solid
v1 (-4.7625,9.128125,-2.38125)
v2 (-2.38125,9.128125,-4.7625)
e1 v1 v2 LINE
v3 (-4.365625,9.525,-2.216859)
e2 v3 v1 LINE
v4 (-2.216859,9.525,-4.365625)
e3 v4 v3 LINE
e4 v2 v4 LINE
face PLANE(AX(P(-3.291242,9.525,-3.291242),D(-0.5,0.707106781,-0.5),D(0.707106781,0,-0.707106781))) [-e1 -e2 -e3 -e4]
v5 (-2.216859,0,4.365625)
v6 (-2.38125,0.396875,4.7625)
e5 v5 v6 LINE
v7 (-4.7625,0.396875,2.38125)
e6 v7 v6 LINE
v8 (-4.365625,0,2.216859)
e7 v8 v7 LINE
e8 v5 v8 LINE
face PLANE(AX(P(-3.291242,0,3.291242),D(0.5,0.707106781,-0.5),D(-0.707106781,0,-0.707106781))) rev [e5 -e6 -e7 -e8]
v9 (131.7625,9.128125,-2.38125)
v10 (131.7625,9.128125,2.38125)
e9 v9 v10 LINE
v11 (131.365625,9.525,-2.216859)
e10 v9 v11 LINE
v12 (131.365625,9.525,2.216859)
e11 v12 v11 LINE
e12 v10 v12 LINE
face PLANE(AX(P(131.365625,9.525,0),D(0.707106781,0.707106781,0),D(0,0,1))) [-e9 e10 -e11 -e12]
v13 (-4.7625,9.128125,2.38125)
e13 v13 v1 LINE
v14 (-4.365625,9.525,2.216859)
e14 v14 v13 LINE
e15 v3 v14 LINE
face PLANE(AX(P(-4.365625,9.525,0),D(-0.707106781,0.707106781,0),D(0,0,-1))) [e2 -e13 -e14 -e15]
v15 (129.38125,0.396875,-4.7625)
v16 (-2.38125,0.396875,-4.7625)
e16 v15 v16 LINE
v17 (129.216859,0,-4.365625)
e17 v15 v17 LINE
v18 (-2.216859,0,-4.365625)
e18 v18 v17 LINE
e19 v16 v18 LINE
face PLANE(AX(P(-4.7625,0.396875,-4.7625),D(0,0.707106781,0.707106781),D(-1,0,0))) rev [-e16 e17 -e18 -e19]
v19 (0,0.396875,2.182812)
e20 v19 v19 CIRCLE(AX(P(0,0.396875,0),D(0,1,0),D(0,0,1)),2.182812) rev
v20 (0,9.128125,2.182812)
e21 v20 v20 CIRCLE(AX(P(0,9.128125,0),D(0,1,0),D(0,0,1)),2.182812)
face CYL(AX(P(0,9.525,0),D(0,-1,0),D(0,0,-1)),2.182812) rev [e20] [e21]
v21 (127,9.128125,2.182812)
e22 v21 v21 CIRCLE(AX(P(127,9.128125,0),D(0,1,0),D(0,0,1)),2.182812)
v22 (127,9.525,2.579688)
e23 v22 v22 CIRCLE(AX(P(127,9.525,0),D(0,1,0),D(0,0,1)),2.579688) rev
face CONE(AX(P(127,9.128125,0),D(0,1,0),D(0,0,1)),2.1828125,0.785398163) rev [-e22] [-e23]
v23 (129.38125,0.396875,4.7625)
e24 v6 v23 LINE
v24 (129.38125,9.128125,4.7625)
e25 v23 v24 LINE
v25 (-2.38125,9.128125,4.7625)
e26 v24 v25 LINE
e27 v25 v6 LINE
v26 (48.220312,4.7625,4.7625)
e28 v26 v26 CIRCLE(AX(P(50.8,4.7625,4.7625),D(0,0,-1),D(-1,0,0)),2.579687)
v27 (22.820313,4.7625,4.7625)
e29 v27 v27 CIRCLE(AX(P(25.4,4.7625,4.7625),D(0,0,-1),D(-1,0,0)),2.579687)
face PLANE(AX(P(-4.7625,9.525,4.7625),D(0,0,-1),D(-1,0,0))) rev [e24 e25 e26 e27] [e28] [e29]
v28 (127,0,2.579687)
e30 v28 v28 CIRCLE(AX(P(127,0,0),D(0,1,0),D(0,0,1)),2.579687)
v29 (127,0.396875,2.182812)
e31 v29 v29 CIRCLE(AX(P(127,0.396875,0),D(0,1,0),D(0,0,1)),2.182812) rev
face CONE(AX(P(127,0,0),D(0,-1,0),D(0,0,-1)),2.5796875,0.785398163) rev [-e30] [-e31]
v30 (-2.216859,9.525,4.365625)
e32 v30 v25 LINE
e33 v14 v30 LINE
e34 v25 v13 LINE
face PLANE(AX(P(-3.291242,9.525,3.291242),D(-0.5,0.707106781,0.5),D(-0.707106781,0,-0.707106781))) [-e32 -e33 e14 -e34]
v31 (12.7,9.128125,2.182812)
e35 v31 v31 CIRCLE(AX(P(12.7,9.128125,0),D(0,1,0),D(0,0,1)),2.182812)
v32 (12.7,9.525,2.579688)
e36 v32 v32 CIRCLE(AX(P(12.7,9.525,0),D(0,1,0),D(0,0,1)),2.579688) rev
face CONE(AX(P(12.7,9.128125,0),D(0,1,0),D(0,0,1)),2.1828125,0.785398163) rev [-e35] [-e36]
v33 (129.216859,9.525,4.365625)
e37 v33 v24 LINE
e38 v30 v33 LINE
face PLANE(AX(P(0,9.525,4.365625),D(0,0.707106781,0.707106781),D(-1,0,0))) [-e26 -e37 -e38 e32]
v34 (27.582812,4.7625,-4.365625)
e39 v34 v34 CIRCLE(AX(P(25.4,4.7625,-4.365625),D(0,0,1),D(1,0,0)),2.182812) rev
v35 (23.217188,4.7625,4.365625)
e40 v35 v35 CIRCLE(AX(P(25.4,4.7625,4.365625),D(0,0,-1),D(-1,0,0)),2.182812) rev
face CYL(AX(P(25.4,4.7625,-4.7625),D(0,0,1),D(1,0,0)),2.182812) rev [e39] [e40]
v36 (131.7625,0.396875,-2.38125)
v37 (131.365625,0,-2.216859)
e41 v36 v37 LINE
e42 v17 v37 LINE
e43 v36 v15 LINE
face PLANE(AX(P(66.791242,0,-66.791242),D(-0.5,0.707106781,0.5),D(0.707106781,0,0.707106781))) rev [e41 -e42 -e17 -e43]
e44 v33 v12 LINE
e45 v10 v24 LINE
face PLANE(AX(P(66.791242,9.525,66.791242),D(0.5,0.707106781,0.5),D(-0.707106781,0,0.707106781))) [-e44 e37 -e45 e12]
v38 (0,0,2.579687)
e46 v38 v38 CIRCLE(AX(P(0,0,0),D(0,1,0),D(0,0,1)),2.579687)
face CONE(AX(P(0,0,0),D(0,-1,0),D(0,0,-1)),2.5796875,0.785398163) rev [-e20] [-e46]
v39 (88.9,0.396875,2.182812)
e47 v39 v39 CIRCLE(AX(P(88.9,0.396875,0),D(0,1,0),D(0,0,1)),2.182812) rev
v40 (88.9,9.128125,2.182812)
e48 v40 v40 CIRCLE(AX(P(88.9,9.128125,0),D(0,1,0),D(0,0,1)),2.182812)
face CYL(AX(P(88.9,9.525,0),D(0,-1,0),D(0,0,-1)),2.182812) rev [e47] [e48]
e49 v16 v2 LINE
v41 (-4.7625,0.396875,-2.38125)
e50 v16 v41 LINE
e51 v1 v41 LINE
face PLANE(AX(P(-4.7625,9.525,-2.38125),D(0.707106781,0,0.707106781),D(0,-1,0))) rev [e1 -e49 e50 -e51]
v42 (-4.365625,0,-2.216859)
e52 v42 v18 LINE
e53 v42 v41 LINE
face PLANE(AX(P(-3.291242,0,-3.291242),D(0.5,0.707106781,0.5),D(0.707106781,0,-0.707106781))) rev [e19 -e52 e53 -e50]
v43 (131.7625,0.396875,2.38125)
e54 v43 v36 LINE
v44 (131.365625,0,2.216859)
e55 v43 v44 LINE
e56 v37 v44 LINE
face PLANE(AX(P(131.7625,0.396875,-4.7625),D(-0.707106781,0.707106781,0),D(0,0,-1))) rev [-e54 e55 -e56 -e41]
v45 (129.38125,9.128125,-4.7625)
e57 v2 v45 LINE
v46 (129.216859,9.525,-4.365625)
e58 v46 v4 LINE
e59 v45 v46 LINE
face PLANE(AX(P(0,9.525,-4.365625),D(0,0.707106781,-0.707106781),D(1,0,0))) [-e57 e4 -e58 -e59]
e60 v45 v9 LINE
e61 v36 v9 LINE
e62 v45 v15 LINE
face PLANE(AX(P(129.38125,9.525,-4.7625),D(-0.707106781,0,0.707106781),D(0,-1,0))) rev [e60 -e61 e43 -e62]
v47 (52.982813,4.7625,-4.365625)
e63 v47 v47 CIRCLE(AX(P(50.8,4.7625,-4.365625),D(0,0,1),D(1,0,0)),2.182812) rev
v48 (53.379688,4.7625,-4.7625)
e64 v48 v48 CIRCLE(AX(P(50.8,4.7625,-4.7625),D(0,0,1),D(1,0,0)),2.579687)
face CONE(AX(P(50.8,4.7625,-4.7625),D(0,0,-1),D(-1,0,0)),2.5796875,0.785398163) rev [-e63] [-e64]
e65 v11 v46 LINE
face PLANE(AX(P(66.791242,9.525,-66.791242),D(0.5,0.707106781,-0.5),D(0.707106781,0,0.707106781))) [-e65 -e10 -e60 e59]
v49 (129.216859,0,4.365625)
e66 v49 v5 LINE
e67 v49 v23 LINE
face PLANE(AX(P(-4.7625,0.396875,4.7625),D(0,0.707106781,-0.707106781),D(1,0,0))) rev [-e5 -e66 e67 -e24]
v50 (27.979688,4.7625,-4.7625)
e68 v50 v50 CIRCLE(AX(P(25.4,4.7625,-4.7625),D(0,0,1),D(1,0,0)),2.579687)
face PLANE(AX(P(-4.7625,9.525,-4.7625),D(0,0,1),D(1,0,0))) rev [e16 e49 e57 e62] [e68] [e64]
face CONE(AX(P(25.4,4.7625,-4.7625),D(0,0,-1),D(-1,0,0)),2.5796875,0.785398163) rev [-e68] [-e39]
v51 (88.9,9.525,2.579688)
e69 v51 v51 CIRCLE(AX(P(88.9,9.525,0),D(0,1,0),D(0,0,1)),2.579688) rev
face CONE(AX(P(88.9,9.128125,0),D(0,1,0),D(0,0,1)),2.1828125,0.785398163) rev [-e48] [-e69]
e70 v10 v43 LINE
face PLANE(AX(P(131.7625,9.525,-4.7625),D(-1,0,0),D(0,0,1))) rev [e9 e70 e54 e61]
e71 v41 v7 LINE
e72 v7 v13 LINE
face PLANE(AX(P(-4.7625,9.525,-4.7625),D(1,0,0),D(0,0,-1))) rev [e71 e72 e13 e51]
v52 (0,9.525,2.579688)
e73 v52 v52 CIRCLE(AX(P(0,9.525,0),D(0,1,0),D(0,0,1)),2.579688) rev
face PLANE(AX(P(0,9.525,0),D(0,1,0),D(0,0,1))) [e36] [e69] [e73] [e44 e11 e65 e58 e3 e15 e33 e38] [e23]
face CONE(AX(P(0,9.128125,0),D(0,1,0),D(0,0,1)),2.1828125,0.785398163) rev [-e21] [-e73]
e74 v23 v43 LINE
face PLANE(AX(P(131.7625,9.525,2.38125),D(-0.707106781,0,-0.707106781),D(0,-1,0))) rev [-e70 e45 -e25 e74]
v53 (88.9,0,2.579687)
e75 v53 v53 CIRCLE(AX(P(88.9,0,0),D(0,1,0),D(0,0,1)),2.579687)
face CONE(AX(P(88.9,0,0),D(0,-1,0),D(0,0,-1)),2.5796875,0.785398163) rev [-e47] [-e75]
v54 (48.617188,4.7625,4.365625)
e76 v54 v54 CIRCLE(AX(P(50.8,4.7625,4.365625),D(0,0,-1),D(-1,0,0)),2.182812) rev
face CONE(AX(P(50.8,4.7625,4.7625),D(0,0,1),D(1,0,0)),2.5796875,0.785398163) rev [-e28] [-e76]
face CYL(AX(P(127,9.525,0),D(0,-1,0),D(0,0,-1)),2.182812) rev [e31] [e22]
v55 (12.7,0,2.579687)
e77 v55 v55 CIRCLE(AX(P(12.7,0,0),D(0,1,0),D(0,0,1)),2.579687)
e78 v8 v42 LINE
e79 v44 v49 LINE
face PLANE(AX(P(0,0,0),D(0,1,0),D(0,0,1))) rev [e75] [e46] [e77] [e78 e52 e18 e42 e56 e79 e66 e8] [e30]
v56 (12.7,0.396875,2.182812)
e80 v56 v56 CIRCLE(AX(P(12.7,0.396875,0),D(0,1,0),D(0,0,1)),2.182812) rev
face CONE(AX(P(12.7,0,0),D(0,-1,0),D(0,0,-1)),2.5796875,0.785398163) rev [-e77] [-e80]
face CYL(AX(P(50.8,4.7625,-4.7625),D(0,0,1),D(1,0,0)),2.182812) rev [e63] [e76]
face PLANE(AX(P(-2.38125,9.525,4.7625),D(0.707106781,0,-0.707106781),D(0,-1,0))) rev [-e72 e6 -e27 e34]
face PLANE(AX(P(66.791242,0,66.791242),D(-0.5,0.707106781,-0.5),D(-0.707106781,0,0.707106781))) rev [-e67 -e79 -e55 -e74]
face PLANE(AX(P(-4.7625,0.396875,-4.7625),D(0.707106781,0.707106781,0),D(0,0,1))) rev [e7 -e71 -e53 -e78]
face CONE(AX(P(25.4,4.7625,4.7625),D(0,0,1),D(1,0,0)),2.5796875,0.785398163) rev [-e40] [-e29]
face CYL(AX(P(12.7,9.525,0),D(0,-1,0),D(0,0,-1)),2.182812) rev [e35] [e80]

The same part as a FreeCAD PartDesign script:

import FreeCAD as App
import Part
import Sketcher
Q = App.Units.Quantity


def edges_at(feature, points):
    """Names of the edges that pass closest to the given points."""
    edges = feature.Shape.Edges
    near = lambda p: min(range(len(edges)), key=lambda i: edges[i].distToShape(Part.Vertex(*p))[0])
    return sorted({f"Edge{near(p) + 1}" for p in points})

doc = App.newDocument("Part")
body = doc.addObject("PartDesign::Body", "Body")

# Sketch on XZ plane
sketch1 = body.newObject("Sketcher::SketchObject", "Sketch")
sketch1.AttachmentSupport = (doc.getObject("XZ_Plane"), [""])
sketch1.MapMode = "FlatFace"
sketch1.addGeometry([
    Part.LineSegment(App.Vector(-4.8, -4.8, 0), App.Vector(-4.8, 4.8, 0)),  # 0
    Part.LineSegment(App.Vector(-4.8, 4.8, 0), App.Vector(131.8, 4.8, 0)),  # 1
    Part.LineSegment(App.Vector(131.8, 4.8, 0), App.Vector(131.8, -4.8, 0)),  # 2
    Part.LineSegment(App.Vector(131.8, -4.8, 0), App.Vector(-4.8, -4.8, 0)),  # 3
    Part.Circle(App.Vector(0, 0, 0), App.Vector(0, 0, 1), 2.2),  # 4
    Part.Circle(App.Vector(12.7, 0, 0), App.Vector(0, 0, 1), 2.2),  # 5
    Part.Circle(App.Vector(88.9, 0, 0), App.Vector(0, 0, 1), 2.2),  # 6
    Part.Circle(App.Vector(127, 0, 0), App.Vector(0, 0, 1), 2.2),  # 7
], False)
sketch1.addConstraint([
    Sketcher.Constraint("Coincident", 0, 2, 1, 1),
    Sketcher.Constraint("Coincident", 1, 2, 2, 1),
    Sketcher.Constraint("Coincident", 2, 2, 3, 1),
    Sketcher.Constraint("Coincident", 3, 2, 0, 1),
    Sketcher.Constraint("Vertical", 0),
    Sketcher.Constraint("Horizontal", 1),
    Sketcher.Constraint("Vertical", 2),
    Sketcher.Constraint("Horizontal", 3),
    Sketcher.Constraint("Coincident", 4, 3, -1, 1),
    Sketcher.Constraint("Equal", 4, 5),
    Sketcher.Constraint("Equal", 5, 6),
    Sketcher.Constraint("Equal", 6, 7),
    Sketcher.Constraint("PointOnObject", 5, 3, -1),
    Sketcher.Constraint("PointOnObject", 6, 3, -1),
    Sketcher.Constraint("PointOnObject", 7, 3, -1),
    Sketcher.Constraint("Diameter", 4, Q("0.171875 in")),
    Sketcher.Constraint("DistanceX", -1, 1, 7, 3, Q("5 in")),
    Sketcher.Constraint("DistanceX", 5, 3, 6, 3, Q("3 in")),
    Sketcher.Constraint("DistanceX", -1, 1, 5, 3, Q("0.5 in")),
    Sketcher.Constraint("DistanceX", 1, 1, 1, 2, Q("5.375 in")),
    Sketcher.Constraint("DistanceY", 0, 1, 0, 2, Q("0.375 in")),
    Sketcher.Constraint("DistanceX", 0, 2, -1, 1, Q("0.1875 in")),
    Sketcher.Constraint("DistanceY", -1, 1, 0, 2, Q("0.1875 in")),
])
pad1 = body.newObject("PartDesign::Pad", "Pad")
pad1.Profile = sketch1
pad1.Length = Q("0.375 in")
pad1.Reversed = True

# Sketch on XY plane
sketch2 = body.newObject("Sketcher::SketchObject", "Sketch001")
sketch2.AttachmentSupport = (doc.getObject("XY_Plane"), [""])
sketch2.MapMode = "FlatFace"
sketch2.AttachmentOffset = App.Placement(App.Vector(0, 0, 0.1875 * 25.4), App.Rotation())
sketch2.addGeometry([
    Part.Circle(App.Vector(25.4, 4.8, 0), App.Vector(0, 0, 1), 2.2),
    Part.Circle(App.Vector(50.8, 4.8, 0), App.Vector(0, 0, 1), 2.2),
], False)
sketch2.addConstraint([
    Sketcher.Constraint("Equal", 0, 1),
    Sketcher.Constraint("Horizontal", 0, 3, 1, 3),
    Sketcher.Constraint("Diameter", 0, Q("0.171875 in")),
    Sketcher.Constraint("DistanceX", -1, 1, 0, 3, Q("1 in")),
    Sketcher.Constraint("DistanceX", -1, 1, 1, 3, Q("2 in")),
    Sketcher.Constraint("DistanceY", -1, 1, 0, 3, Q("0.1875 in")),
])
pocket1 = body.newObject("PartDesign::Pocket", "Pocket")
pocket1.Profile = sketch2
pocket1.Type = "ThroughAll"
pocket1.Midplane = True
doc.recompute()

chamfer = body.newObject("PartDesign::Chamfer", "Chamfer")
chamfer.Base = (pocket1, edges_at(pocket1, [
    (-4.763, 4.763, -4.763),
    (131.762, 4.763, -4.763),
    (131.762, 4.763, 4.763),
    (-4.763, 4.763, 4.763),
]))
chamfer.Size = Q("0.09375 in")
doc.recompute()

chamfer2 = body.newObject("PartDesign::Chamfer", "Chamfer001")
chamfer2.Base = (chamfer, edges_at(chamfer, [
    (-2.183, 0, 0),
    (-2.183, 9.525, 0),
    (10.517, 0, 0),
    (10.517, 9.525, 0),
    (124.817, 0, 0),
    (124.817, 9.525, 0),
    (86.717, 0, 0),
    (86.717, 9.525, 0),
    (23.217, 4.763, -4.763),
    (23.217, 4.763, 4.763),
    (48.617, 4.763, -4.763),
    (48.617, 4.763, 4.763),
    (63.5, 0, -4.763),
    (63.5, 9.525, -4.763),
    (-4.763, 0, 0),
    (131.762, 0, 0),
    (63.5, 0, 4.763),
    (-3.572, 0, 3.572),
    (-3.572, 0, -3.572),
    (130.572, 0, 3.572),
    (130.572, 0, -3.572),
    (131.762, 9.525, 0),
    (-4.763, 9.525, 0),
    (63.5, 9.525, 4.763),
    (-3.572, 9.525, 3.572),
    (-3.572, 9.525, -3.572),
    (130.572, 9.525, 3.572),
    (130.572, 9.525, -3.572),
]))
chamfer2.Size = Q("0.015625 in")

doc.recompute()
